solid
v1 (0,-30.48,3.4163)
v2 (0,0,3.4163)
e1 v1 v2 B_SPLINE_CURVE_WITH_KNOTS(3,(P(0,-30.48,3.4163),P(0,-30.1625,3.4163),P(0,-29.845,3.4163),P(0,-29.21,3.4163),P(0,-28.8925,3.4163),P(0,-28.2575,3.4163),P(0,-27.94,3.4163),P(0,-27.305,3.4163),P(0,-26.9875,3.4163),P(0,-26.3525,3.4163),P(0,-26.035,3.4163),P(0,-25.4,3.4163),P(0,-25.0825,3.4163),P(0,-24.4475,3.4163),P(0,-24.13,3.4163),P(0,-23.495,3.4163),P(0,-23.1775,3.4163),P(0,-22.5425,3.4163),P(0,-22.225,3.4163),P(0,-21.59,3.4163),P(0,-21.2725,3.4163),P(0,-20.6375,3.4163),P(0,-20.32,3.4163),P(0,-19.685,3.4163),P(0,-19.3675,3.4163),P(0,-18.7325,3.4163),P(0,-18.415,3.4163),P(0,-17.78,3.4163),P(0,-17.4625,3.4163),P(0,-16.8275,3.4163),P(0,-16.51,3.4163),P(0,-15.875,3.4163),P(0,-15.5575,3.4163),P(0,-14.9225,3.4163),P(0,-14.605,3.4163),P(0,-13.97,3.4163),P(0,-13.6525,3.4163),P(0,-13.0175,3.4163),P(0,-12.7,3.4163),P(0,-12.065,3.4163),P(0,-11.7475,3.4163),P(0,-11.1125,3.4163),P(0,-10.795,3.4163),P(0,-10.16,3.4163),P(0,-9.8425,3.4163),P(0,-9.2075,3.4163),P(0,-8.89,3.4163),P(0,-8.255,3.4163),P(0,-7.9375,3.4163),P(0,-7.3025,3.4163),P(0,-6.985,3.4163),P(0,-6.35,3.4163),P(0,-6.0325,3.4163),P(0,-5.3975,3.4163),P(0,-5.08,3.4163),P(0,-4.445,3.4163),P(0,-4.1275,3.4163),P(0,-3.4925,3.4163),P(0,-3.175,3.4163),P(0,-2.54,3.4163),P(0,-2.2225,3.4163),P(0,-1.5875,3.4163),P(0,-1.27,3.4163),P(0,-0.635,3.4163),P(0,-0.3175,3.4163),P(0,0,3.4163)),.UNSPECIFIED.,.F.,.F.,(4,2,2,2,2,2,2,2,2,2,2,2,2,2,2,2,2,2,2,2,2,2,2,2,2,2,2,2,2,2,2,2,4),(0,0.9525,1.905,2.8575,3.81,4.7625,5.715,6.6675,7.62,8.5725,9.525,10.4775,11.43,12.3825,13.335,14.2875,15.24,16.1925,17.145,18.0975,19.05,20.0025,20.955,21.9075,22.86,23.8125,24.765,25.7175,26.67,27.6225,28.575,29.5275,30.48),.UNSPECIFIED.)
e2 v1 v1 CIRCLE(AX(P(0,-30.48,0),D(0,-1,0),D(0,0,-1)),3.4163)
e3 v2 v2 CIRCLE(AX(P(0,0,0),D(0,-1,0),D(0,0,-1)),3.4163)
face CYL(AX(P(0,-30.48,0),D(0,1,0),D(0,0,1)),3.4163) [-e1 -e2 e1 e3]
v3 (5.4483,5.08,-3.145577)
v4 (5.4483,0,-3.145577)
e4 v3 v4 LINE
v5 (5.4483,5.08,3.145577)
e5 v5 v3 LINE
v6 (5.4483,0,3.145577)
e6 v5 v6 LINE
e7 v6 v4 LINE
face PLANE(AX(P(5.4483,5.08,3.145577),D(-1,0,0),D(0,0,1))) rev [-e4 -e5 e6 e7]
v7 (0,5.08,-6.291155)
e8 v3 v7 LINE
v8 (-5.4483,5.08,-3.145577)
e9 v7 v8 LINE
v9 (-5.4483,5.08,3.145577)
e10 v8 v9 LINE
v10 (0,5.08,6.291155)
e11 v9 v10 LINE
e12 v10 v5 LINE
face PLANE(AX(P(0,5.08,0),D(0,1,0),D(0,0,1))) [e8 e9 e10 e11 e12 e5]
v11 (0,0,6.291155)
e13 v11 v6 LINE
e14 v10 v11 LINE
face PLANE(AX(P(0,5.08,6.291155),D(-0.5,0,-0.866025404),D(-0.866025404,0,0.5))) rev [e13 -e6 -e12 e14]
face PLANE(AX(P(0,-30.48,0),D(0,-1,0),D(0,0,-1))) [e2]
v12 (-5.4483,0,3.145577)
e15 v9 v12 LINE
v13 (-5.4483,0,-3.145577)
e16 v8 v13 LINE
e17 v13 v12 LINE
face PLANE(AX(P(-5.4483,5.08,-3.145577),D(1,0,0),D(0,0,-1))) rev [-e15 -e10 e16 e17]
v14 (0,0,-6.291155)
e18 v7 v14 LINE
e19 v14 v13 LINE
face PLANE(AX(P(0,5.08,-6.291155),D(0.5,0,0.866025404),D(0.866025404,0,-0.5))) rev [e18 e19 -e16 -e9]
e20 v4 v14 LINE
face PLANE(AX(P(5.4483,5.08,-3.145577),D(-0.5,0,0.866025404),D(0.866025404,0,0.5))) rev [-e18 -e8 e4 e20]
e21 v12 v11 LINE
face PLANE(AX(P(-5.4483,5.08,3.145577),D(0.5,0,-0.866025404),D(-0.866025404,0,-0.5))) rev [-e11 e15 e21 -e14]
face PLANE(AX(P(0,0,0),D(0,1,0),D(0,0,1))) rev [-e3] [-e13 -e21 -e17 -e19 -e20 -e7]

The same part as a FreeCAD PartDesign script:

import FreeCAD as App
import Part
import Sketcher
Q = App.Units.Quantity


def add_polygon(sketch, points):
    """Adds a closed chain of lines whose ends are joined by coincident constraints."""
    first, n = sketch.GeometryCount, len(points)
    for a, b in zip(points, points[1:] + points[:1]):
        sketch.addGeometry(Part.LineSegment(App.Vector(*a, 0), App.Vector(*b, 0)), False)
    for i in range(n):
        sketch.addConstraint(Sketcher.Constraint("Coincident", first + i, 2, first + (i + 1) % n, 1))

doc = App.newDocument("Part")
body = doc.addObject("PartDesign::Body", "Body")

sketch1 = body.newObject("Sketcher::SketchObject", "Sketch")
sketch1.AttachmentSupport = (doc.getObject("XZ_Plane"), [""])
sketch1.MapMode = "FlatFace"
add_polygon(sketch1, [(0, -6), (-5, -3), (-5, 3), (0, 6), (5, 3), (5, -3)])
sketch1.addConstraint([
    Sketcher.Constraint("Vertical", 1),
    Sketcher.Constraint("Vertical", 4),
    Sketcher.Constraint("Symmetric", 0, 2, 3, 2, -1, 1),
    Sketcher.Constraint("Symmetric", 2, 2, 5, 2, -1, 1),
    Sketcher.Constraint("PointOnObject", 2, 2, -2),
    Sketcher.Constraint("Parallel", 2, 5),
    Sketcher.Constraint("Horizontal", 1, 2, 3, 2),
    Sketcher.Constraint("Angle", 0, Q("150 deg")),
    Sketcher.Constraint("DistanceX", 1, 2, 3, 2, Q("0.429 in")),
    Sketcher.Constraint("DistanceY", 1, 1, 1, 2, Q("6.291155 mm")),
])
pad1 = body.newObject("PartDesign::Pad", "Pad")
pad1.Profile = sketch1
pad1.Length = Q("0.2 in")
pad1.Reversed = True

sketch2 = body.newObject("Sketcher::SketchObject", "Sketch001")
sketch2.AttachmentSupport = (doc.getObject("XZ_Plane"), [""])
sketch2.MapMode = "FlatFace"
sketch2.addGeometry(Part.Circle(App.Vector(0, 0, 0), App.Vector(0, 0, 1), 3.4), False)
sketch2.addConstraint([
    Sketcher.Constraint("Coincident", 0, 3, -1, 1),
    Sketcher.Constraint("Diameter", 0, Q("0.269 in")),
])
pad2 = body.newObject("PartDesign::Pad", "Pad001")
pad2.Profile = sketch2
pad2.Length = Q("1.2 in")

doc.recompute()
